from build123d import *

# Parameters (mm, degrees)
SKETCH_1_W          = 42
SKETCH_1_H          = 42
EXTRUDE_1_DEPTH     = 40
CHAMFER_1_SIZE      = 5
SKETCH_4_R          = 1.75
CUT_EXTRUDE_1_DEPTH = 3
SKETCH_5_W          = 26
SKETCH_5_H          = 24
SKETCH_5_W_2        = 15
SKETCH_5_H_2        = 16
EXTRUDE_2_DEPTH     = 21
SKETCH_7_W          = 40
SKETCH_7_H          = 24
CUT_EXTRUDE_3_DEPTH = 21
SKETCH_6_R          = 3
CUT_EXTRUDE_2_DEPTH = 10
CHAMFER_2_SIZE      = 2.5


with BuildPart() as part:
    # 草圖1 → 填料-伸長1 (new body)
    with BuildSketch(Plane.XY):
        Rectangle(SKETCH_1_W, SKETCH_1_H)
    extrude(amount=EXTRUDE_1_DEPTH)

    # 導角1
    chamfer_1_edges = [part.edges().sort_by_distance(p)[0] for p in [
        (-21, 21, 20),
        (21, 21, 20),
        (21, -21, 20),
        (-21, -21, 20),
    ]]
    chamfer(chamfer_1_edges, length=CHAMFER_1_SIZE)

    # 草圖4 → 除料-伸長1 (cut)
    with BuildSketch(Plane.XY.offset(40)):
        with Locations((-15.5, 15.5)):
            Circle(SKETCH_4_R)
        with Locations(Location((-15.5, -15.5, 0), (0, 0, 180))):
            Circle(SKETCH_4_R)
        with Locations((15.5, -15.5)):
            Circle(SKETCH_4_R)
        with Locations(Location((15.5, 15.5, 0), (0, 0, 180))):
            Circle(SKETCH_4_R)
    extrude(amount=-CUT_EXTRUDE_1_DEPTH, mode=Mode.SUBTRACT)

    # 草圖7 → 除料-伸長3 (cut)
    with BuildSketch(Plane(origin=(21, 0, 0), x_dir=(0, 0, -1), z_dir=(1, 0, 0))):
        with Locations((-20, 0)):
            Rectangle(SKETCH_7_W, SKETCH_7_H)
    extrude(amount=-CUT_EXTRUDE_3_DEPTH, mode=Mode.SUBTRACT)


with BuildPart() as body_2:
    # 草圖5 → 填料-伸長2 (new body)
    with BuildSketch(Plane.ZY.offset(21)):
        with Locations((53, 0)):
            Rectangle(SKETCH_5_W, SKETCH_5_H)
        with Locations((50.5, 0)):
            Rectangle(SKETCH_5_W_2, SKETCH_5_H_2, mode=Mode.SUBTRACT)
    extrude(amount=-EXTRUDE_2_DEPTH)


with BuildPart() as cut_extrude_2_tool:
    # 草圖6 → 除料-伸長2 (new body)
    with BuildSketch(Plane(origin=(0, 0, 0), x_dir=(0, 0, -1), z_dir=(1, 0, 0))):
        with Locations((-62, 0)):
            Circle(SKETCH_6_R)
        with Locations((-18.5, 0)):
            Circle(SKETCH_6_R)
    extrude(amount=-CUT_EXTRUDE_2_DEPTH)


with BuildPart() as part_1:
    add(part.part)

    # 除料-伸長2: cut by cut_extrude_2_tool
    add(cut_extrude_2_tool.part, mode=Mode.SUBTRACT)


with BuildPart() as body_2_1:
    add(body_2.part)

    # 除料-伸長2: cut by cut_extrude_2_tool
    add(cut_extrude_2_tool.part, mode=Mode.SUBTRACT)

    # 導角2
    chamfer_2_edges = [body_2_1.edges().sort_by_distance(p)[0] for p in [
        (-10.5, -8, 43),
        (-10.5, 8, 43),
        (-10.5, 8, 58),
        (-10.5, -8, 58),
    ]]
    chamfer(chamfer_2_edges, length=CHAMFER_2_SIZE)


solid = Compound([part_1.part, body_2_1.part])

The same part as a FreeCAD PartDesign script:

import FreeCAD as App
import Part
import Sketcher
Q = App.Units.Quantity


def edges_at(feature, points):
    """Names of the edges that pass closest to the given points."""
    edges = feature.Shape.Edges
    near = lambda p: min(range(len(edges)), key=lambda i: edges[i].distToShape(Part.Vertex(*p))[0])
    return sorted({f"Edge{near(p) + 1}" for p in points})

doc = App.newDocument("Part")
body = doc.addObject("PartDesign::Body", "Body")

# Sketch on XY plane
sketch1 = body.newObject("Sketcher::SketchObject", "Sketch")
sketch1.AttachmentSupport = (doc.getObject("XY_Plane"), [""])
sketch1.MapMode = "FlatFace"
sketch1.addGeometry([
    Part.LineSegment(App.Vector(-21, 21, 0), App.Vector(-21, -21, 0)),
    Part.LineSegment(App.Vector(-21, -21, 0), App.Vector(21, -21, 0)),
    Part.LineSegment(App.Vector(21, -21, 0), App.Vector(21, 21, 0)),
    Part.LineSegment(App.Vector(21, 21, 0), App.Vector(-21, 21, 0)),
], False)
sketch1.addConstraint([
    Sketcher.Constraint("Coincident", 0, 2, 1, 1),
    Sketcher.Constraint("Coincident", 1, 2, 2, 1),
    Sketcher.Constraint("Coincident", 2, 2, 3, 1),
    Sketcher.Constraint("Coincident", 3, 2, 0, 1),
    Sketcher.Constraint("Vertical", 0),
    Sketcher.Constraint("Horizontal", 1),
    Sketcher.Constraint("Vertical", 2),
    Sketcher.Constraint("Horizontal", 3),
    Sketcher.Constraint("Symmetric", 0, 2, 2, 2, -1, 1),
    Sketcher.Constraint("Equal", 3, 0),
    Sketcher.Constraint("DistanceX", 1, 1, 1, 2, Q("42 mm")),
])
pad1 = body.newObject("PartDesign::Pad", "Pad")
pad1.Profile = sketch1
pad1.Length = 40
doc.recompute()

chamfer = body.newObject("PartDesign::Chamfer", "Chamfer")
chamfer.Base = (pad1, edges_at(pad1, [
    (-21, 21, 20),
    (21, 21, 20),
    (21, -21, 20),
    (-21, -21, 20),
]))
chamfer.Size = 5

# Sketch on XY plane
sketch2 = body.newObject("Sketcher::SketchObject", "Sketch001")
sketch2.AttachmentSupport = (doc.getObject("XY_Plane"), [""])
sketch2.MapMode = "FlatFace"
sketch2.AttachmentOffset = App.Placement(App.Vector(0, 0, 40), App.Rotation())
sketch2.addGeometry([
    Part.Circle(App.Vector(-15.5, 15.5, 0), App.Vector(0, 0, 1), 1.8),
    Part.Circle(App.Vector(-15.5, -15.5, 0), App.Vector(0, 0, 1), 1.8),
    Part.Circle(App.Vector(15.5, -15.5, 0), App.Vector(0, 0, 1), 1.8),
    Part.Circle(App.Vector(15.5, 15.5, 0), App.Vector(0, 0, 1), 1.8),
], False)
sketch2.addConstraint([
    Sketcher.Constraint("Equal", 0, 1),
    Sketcher.Constraint("Equal", 1, 2),
    Sketcher.Constraint("Equal", 2, 3),
    Sketcher.Constraint("Symmetric", 0, 3, 2, 3, -1, 1),
    Sketcher.Constraint("Symmetric", 1, 3, 3, 3, -1, 1),
    Sketcher.Constraint("Symmetric", 1, 3, 2, 3, -2),
    Sketcher.Constraint("Diameter", 0, Q("3.5 mm")),
    Sketcher.Constraint("DistanceY", 1, 3, 0, 3, Q("31 mm")),
    Sketcher.Constraint("DistanceX", 1, 3, 2, 3, Q("31 mm")),
])
pocket1 = body.newObject("PartDesign::Pocket", "Pocket")
pocket1.Profile = sketch2
pocket1.Length = 3

# Sketch on YZ plane
sketch3 = body.newObject("Sketcher::SketchObject", "Sketch002")
sketch3.AttachmentSupport = (doc.getObject("YZ_Plane"), [""])
sketch3.MapMode = "FlatFace"
sketch3.AttachmentOffset = App.Placement(App.Vector(0, 0, 21), App.Rotation())
sketch3.addGeometry([
    Part.LineSegment(App.Vector(12, 40, 0), App.Vector(-12, 40, 0)),
    Part.LineSegment(App.Vector(-12, 40, 0), App.Vector(-12, 0, 0)),
    Part.LineSegment(App.Vector(-12, 0, 0), App.Vector(12, 0, 0)),
    Part.LineSegment(App.Vector(12, 0, 0), App.Vector(12, 40, 0)),
], False)
sketch3.addConstraint([
    Sketcher.Constraint("Coincident", 0, 2, 1, 1),
    Sketcher.Constraint("Coincident", 1, 2, 2, 1),
    Sketcher.Constraint("Coincident", 2, 2, 3, 1),
    Sketcher.Constraint("Coincident", 3, 2, 0, 1),
    Sketcher.Constraint("Horizontal", 0),
    Sketcher.Constraint("Vertical", 1),
    Sketcher.Constraint("Horizontal", 2),
    Sketcher.Constraint("Vertical", 3),
    Sketcher.Constraint("Symmetric", 1, 2, 2, 2, -1, 1),
    Sketcher.Constraint("DistanceX", 0, 2, 0, 1, Q("24 mm")),
    Sketcher.Constraint("DistanceY", 1, 2, 1, 1, Q("40 mm")),
])
pocket2 = body.newObject("PartDesign::Pocket", "Pocket001")
pocket2.Profile = sketch3
pocket2.Length = 21
body2 = doc.addObject("PartDesign::Body", "Body001")

# Sketch on YZ plane
sketch4 = body2.newObject("Sketcher::SketchObject", "Sketch003")
sketch4.AttachmentSupport = (doc.getObject("YZ_Plane001"), [""])
sketch4.MapMode = "FlatFace"
sketch4.AttachmentOffset = App.Placement(App.Vector(0, 0, -21), App.Rotation())
sketch4.addGeometry([
    Part.LineSegment(App.Vector(12, 40, 0), App.Vector(-12, 40, 0)),  # 0
    Part.LineSegment(App.Vector(-12, 40, 0), App.Vector(-12, 66, 0)),  # 1
    Part.LineSegment(App.Vector(-12, 66, 0), App.Vector(12, 66, 0)),  # 2
    Part.LineSegment(App.Vector(12, 66, 0), App.Vector(12, 40, 0)),  # 3
    Part.LineSegment(App.Vector(-8, 58, 0), App.Vector(-8, 43, 0)),  # 4
    Part.LineSegment(App.Vector(-8, 43, 0), App.Vector(8, 43, 0)),  # 5
    Part.LineSegment(App.Vector(8, 43, 0), App.Vector(8, 58, 0)),  # 6
    Part.LineSegment(App.Vector(8, 58, 0), App.Vector(-8, 58, 0)),  # 7
], False)
sketch4.addConstraint([
    Sketcher.Constraint("Coincident", 0, 2, 1, 1),
    Sketcher.Constraint("Coincident", 1, 2, 2, 1),
    Sketcher.Constraint("Coincident", 2, 2, 3, 1),
    Sketcher.Constraint("Coincident", 3, 2, 0, 1),
    Sketcher.Constraint("Coincident", 4, 2, 5, 1),
    Sketcher.Constraint("Coincident", 5, 2, 6, 1),
    Sketcher.Constraint("Coincident", 6, 2, 7, 1),
    Sketcher.Constraint("Coincident", 7, 2, 4, 1),
    Sketcher.Constraint("Horizontal", 0),
    Sketcher.Constraint("Vertical", 1),
    Sketcher.Constraint("Horizontal", 2),
    Sketcher.Constraint("Vertical", 3),
    Sketcher.Constraint("Vertical", 4),
    Sketcher.Constraint("Horizontal", 5),
    Sketcher.Constraint("Vertical", 6),
    Sketcher.Constraint("Horizontal", 7),
    Sketcher.Constraint("DistanceX", 0, 2, 0, 1, Q("24 mm")),
    Sketcher.Constraint("DistanceX", 5, 1, 5, 2, Q("16 mm")),
    Sketcher.Constraint("DistanceY", 1, 1, 1, 2, Q("26 mm")),
    Sketcher.Constraint("DistanceY", 4, 2, 4, 1, Q("15 mm")),
    Sketcher.Constraint("DistanceX", 0, 2, -1, 1, Q("12 mm")),
    Sketcher.Constraint("DistanceY", -1, 1, 0, 2, Q("40 mm")),
    Sketcher.Constraint("DistanceX", 4, 2, -1, 1, Q("8 mm")),
    Sketcher.Constraint("DistanceY", -1, 1, 4, 2, Q("43 mm")),
])
pad2 = body2.newObject("PartDesign::Pad", "Pad001")
pad2.Profile = sketch4
pad2.Length = 21
body3 = doc.addObject("PartDesign::Body", "Body002")
body3.AllowCompound = True

# Sketch on YZ plane
sketch5 = body3.newObject("Sketcher::SketchObject", "Sketch004")
sketch5.AttachmentSupport = (doc.getObject("YZ_Plane002"), [""])
sketch5.MapMode = "FlatFace"
sketch5.addGeometry([
    Part.Circle(App.Vector(0, 62, 0), App.Vector(0, 0, 1), 3),
    Part.Circle(App.Vector(0, 18.5, 0), App.Vector(0, 0, 1), 3),
], False)
sketch5.addConstraint([
    Sketcher.Constraint("Equal", 0, 1),
    Sketcher.Constraint("PointOnObject", 0, 3, -2),
    Sketcher.Constraint("PointOnObject", 1, 3, -2),
    Sketcher.Constraint("Diameter", 0, Q("6 mm")),
    Sketcher.Constraint("DistanceY", -1, 1, 0, 3, Q("62 mm")),
    Sketcher.Constraint("DistanceY", -1, 1, 1, 3, Q("18.5 mm")),
])
pad3 = body3.newObject("PartDesign::Pad", "Pad002")
pad3.Profile = sketch5
pad3.Length = 10
pad3.Reversed = True
doc.recompute()

body4 = doc.addObject("PartDesign::Body", "Body003")
body4.BaseFeature = body3
boolean = body.newObject("PartDesign::Boolean", "Boolean")
boolean.Type = "Cut"
boolean.addObjects([body4])
doc.recompute()

boolean2 = body2.newObject("PartDesign::Boolean", "Boolean001")
boolean2.Type = "Cut"
boolean2.addObjects([body3])
doc.recompute()

chamfer2 = body2.newObject("PartDesign::Chamfer", "Chamfer001")
chamfer2.Base = (boolean2, edges_at(boolean2, [
    (-10.5, -8, 43),
    (-10.5, 8, 43),
    (-10.5, 8, 58),
    (-10.5, -8, 58),
]))
chamfer2.Size = 2.5

doc.recompute()
